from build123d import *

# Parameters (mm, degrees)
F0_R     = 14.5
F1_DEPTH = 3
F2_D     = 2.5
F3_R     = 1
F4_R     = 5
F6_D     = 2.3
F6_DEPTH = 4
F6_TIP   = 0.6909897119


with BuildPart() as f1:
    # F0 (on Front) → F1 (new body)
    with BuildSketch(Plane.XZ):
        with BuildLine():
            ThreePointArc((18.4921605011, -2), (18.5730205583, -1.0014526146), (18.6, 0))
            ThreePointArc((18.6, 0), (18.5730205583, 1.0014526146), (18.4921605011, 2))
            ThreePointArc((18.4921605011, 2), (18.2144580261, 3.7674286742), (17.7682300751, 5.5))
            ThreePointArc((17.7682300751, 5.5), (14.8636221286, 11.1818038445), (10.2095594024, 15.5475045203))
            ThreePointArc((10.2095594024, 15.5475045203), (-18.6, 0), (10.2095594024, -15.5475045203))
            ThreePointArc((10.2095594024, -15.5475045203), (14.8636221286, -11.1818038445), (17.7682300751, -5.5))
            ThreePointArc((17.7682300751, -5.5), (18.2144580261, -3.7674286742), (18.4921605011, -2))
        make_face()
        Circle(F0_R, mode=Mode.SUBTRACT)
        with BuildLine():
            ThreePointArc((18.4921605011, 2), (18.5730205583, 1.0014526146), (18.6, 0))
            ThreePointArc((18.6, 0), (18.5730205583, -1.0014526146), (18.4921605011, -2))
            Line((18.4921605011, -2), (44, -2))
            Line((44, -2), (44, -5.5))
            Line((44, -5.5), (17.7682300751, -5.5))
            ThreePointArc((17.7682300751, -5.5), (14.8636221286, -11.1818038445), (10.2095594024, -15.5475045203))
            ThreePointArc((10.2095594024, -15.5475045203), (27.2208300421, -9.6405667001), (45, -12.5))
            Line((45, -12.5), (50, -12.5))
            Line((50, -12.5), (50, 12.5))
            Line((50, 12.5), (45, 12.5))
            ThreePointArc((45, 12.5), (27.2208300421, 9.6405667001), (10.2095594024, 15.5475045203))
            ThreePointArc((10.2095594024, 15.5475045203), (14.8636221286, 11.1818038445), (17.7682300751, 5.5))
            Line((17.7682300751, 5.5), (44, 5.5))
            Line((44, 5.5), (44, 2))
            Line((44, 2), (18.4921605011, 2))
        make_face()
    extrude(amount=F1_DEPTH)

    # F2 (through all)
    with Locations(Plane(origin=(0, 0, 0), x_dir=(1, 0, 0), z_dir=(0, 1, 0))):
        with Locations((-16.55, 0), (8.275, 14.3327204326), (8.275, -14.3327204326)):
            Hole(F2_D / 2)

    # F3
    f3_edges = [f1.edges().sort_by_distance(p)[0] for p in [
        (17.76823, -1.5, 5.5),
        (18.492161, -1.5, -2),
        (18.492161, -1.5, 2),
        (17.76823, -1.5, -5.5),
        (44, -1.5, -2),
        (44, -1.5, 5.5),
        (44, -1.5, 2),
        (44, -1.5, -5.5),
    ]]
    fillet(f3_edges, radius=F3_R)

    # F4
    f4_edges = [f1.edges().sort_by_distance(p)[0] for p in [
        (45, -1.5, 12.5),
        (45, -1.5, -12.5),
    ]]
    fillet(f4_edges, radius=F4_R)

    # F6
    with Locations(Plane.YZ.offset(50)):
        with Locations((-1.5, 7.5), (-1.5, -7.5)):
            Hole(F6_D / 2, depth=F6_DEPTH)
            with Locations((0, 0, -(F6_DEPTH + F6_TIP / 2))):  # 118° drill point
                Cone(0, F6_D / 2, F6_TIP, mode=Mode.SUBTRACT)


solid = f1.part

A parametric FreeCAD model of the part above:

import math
import FreeCAD as App
import Part
import Sketcher
from FreeCAD import Vector
Q = App.Units.Quantity


def edges_at(feature, points):
    """Names of the edges that pass closest to the given points."""
    edges = feature.Shape.Edges
    near = lambda p: min(range(len(edges)), key=lambda i: edges[i].distToShape(Part.Vertex(*p))[0])
    return sorted({f"Edge{near(p) + 1}" for p in points})

doc = App.newDocument("Part")
params = doc.addObject("Spreadsheet::Sheet", "Params")
for row, (alias, value) in enumerate([
    ("sketch1_diameter", "29 mm"),
    ("sketch1_radius", "18.6 mm"),
    ("sketch1_width", "5 mm"),
    ("sketch1_height", "25 mm"),
    ("sketch1_height2", "3.5 mm"),
    ("pad1_length", "3 mm"),
    ("sketch2_diameter", "2.5 mm"),
    ("hole_diameter", "2.5 mm"),
    ("fillet_radius", "1 mm"),
    ("fillet2_radius", "5 mm"),
    ("sketch3_diameter", "2.3 mm"),
    ("hole2_diameter", "2.3 mm"),
    ("hole2_depth", "4 mm"),
], start=1):
    params.set(f"A{row}", alias)
    params.set(f"B{row}", "=" + value)
    params.setAlias(f"B{row}", alias)

body = doc.addObject("PartDesign::Body", "Body")

sketch1 = body.newObject("Sketcher::SketchObject", "Sketch")
sketch1.AttachmentSupport = (doc.getObject("XZ_Plane"), [""])
sketch1.MapMode = "FlatFace"
sketch1.addGeometry(Part.ArcOfCircle(Part.Circle(Vector(0, 0, 0), Vector(0, 0, 1), 18.6), math.radians(57), math.radians(303)), False)
sketch1.addGeometry(Part.ArcOfCircle(Part.Circle(Vector(30.4, -46.3, 0), Vector(0, 0, 1), 36.8), math.radians(67), math.radians(123)), False)
sketch1.addGeometry(Part.LineSegment(Vector(45, -12.5, 0), Vector(50, -12.5, 0)), False)
sketch1.addGeometry(Part.LineSegment(Vector(50, -12.5, 0), Vector(50, 12.5, 0)), False)
sketch1.addGeometry(Part.LineSegment(Vector(50, 12.5, 0), Vector(45, 12.5, 0)), False)
sketch1.addGeometry(Part.ArcOfCircle(Part.Circle(Vector(30.4, 46.3, 0), Vector(0, 0, 1), 36.8), math.radians(-123), math.radians(-67)), False)
sketch1.addGeometry(Part.ArcOfCircle(Part.Circle(Vector(0, 0, 0), Vector(0, 0, 1), 18.6), math.radians(-17.2), math.radians(-6.17)), False)
sketch1.addGeometry(Part.LineSegment(Vector(18.5, -2, 0), Vector(44, -2, 0)), False)
sketch1.addGeometry(Part.LineSegment(Vector(44, -2, 0), Vector(44, -5.5, 0)), False)
sketch1.addGeometry(Part.LineSegment(Vector(44, -5.5, 0), Vector(17.8, -5.5, 0)), False)
sketch1.addGeometry(Part.ArcOfCircle(Part.Circle(Vector(0, 0, 0), Vector(0, 0, 1), 18.6), math.radians(6.17), math.radians(17.2)), False)
sketch1.addGeometry(Part.LineSegment(Vector(17.8, 5.5, 0), Vector(44, 5.5, 0)), False)
sketch1.addGeometry(Part.LineSegment(Vector(44, 5.5, 0), Vector(44, 2, 0)), False)
sketch1.addGeometry(Part.LineSegment(Vector(44, 2, 0), Vector(18.5, 2, 0)), False)
sketch1.addGeometry(Part.Circle(Vector(0, 0, 0), Vector(0, 0, 1), 14.5), False)
sketch1.addConstraint(Sketcher.Constraint("Tangent", 0, 2, 1, 2))
sketch1.addConstraint(Sketcher.Constraint("Coincident", 1, 1, 2, 1))
sketch1.addConstraint(Sketcher.Constraint("Coincident", 2, 2, 3, 1))
sketch1.addConstraint(Sketcher.Constraint("Coincident", 3, 2, 4, 1))
sketch1.addConstraint(Sketcher.Constraint("Coincident", 4, 2, 5, 2))
sketch1.addConstraint(Sketcher.Constraint("Tangent", 5, 1, 0, 1))
sketch1.addConstraint(Sketcher.Constraint("Coincident", 6, 2, 7, 1))
sketch1.addConstraint(Sketcher.Constraint("Coincident", 7, 2, 8, 1))
sketch1.addConstraint(Sketcher.Constraint("Coincident", 8, 2, 9, 1))
sketch1.addConstraint(Sketcher.Constraint("Coincident", 9, 2, 6, 1))
sketch1.addConstraint(Sketcher.Constraint("Coincident", 10, 2, 11, 1))
sketch1.addConstraint(Sketcher.Constraint("Coincident", 11, 2, 12, 1))
sketch1.addConstraint(Sketcher.Constraint("Coincident", 12, 2, 13, 1))
sketch1.addConstraint(Sketcher.Constraint("Coincident", 13, 2, 10, 1))
sketch1.addConstraint(Sketcher.Constraint("Horizontal", 2))
sketch1.addConstraint(Sketcher.Constraint("Vertical", 3))
sketch1.addConstraint(Sketcher.Constraint("Horizontal", 4))
sketch1.addConstraint(Sketcher.Constraint("Horizontal", 7))
sketch1.addConstraint(Sketcher.Constraint("Vertical", 8))
sketch1.addConstraint(Sketcher.Constraint("Horizontal", 9))
sketch1.addConstraint(Sketcher.Constraint("Horizontal", 11))
sketch1.addConstraint(Sketcher.Constraint("Vertical", 12))
sketch1.addConstraint(Sketcher.Constraint("Horizontal", 13))
sketch1.addConstraint(Sketcher.Constraint("Coincident", 0, 3, -1, 1))
sketch1.addConstraint(Sketcher.Constraint("Coincident", 6, 3, -1, 1))
sketch1.addConstraint(Sketcher.Constraint("Coincident", 10, 3, -1, 1))
sketch1.addConstraint(Sketcher.Constraint("Coincident", 14, 3, -1, 1))
sketch1.addConstraint(Sketcher.Constraint("Equal", 1, 5))
sketch1.addConstraint(Sketcher.Constraint("Equal", 0, 6))
sketch1.addConstraint(Sketcher.Constraint("Equal", 6, 10))
sketch1.addConstraint(Sketcher.Constraint("Symmetric", 1, 1, 4, 2, -1))
sketch1.addConstraint(Sketcher.Constraint("Symmetric", 8, 2, 11, 2, -1))
sketch1.addConstraint(Sketcher.Constraint("Vertical", 6, 2, 13, 2))
sketch1.addConstraint(Sketcher.Constraint("Diameter", 14, Q("29 mm")))
sketch1.addConstraint(Sketcher.Constraint("Radius", 0, Q("18.6 mm")))
sketch1.addConstraint(Sketcher.Constraint("DistanceX", 2, 1, 2, 2, Q("5 mm")))
sketch1.addConstraint(Sketcher.Constraint("DistanceY", 3, 1, 3, 2, Q("25 mm")))
sketch1.addConstraint(Sketcher.Constraint("DistanceY", 8, 2, 8, 1, Q("3.5 mm")))
sketch1.addConstraint(Sketcher.Constraint("DistanceX", -1, 1, 1, 1, Q("45 mm")))
sketch1.addConstraint(Sketcher.Constraint("DistanceY", 6, 2, -1, 1, Q("2 mm")))
sketch1.addConstraint(Sketcher.Constraint("DistanceX", -1, 1, 7, 2, Q("44 mm")))
sketch1.addConstraint(Sketcher.Constraint("Radius", 1, Q("36.849714 mm")))
sketch1.setExpression("Constraints[33]", "Params.sketch1_diameter")
sketch1.setExpression("Constraints[34]", "Params.sketch1_radius")
sketch1.setExpression("Constraints[35]", "Params.sketch1_width")
sketch1.setExpression("Constraints[36]", "Params.sketch1_height")
sketch1.setExpression("Constraints[37]", "Params.sketch1_height2")
pad1 = body.newObject("PartDesign::Pad", "Pad")
pad1.Profile = sketch1
pad1.setExpression("Length", "Params.pad1_length")

sketch2 = body.newObject("Sketcher::SketchObject", "Sketch001")
sketch2.AttachmentSupport = (doc.getObject("XZ_Plane"), [""])
sketch2.MapMode = "FlatFace"
sketch2.addGeometry(Part.Circle(Vector(-16.6, 0, 0), Vector(0, 0, 1), 1.2), False)
sketch2.addGeometry(Part.Circle(Vector(8.3, -14.3, 0), Vector(0, 0, 1), 1.2), False)
sketch2.addGeometry(Part.Circle(Vector(8.3, 14.3, 0), Vector(0, 0, 1), 1.2), False)
sketch2.addConstraint(Sketcher.Constraint("Equal", 0, 1))
sketch2.addConstraint(Sketcher.Constraint("Equal", 1, 2))
sketch2.addConstraint(Sketcher.Constraint("Symmetric", 1, 3, 2, 3, -1))
sketch2.addConstraint(Sketcher.Constraint("PointOnObject", 0, 3, -1))
sketch2.addConstraint(Sketcher.Constraint("Diameter", 0, Q("2.5 mm")))
sketch2.addConstraint(Sketcher.Constraint("DistanceX", 0, 3, -1, 1, Q("16.55 mm")))
sketch2.addConstraint(Sketcher.Constraint("DistanceX", -1, 1, 1, 3, Q("8.275 mm")))
sketch2.addConstraint(Sketcher.Constraint("DistanceY", 1, 3, -1, 1, Q("14.33272 mm")))
sketch2.setExpression("Constraints[4]", "Params.sketch2_diameter")
doc.recompute()
hole = body.newObject("PartDesign::Hole", "Hole")
hole.Profile = sketch2
hole.ThreadType = "None"
hole.setExpression("Diameter", "Params.hole_diameter")
hole.DepthType = "ThroughAll"
hole.Reversed = True
doc.recompute()

fillet = body.newObject("PartDesign::Fillet", "Fillet")
fillet.Base = (hole, edges_at(hole, [
    (17.768, -1.5, 5.5),
    (18.492, -1.5, -2),
    (18.492, -1.5, 2),
    (17.768, -1.5, -5.5),
    (44, -1.5, -2),
    (44, -1.5, 5.5),
    (44, -1.5, 2),
    (44, -1.5, -5.5),
]))
fillet.setExpression("Radius", "Params.fillet_radius")
doc.recompute()

fillet2 = body.newObject("PartDesign::Fillet", "Fillet001")
fillet2.Base = (fillet, edges_at(fillet, [(45, -1.5, 12.5), (45, -1.5, -12.5)]))
fillet2.setExpression("Radius", "Params.fillet2_radius")

sketch3 = body.newObject("Sketcher::SketchObject", "Sketch002")
sketch3.AttachmentSupport = (doc.getObject("YZ_Plane"), [""])
sketch3.MapMode = "FlatFace"
sketch3.AttachmentOffset = App.Placement(Vector(0, 0, 50), App.Rotation())
sketch3.addGeometry(Part.Circle(Vector(-1.5, 7.5, 0), Vector(0, 0, 1), 1.1), False)
sketch3.addGeometry(Part.Circle(Vector(-1.5, -7.5, 0), Vector(0, 0, 1), 1.1), False)
sketch3.addConstraint(Sketcher.Constraint("Equal", 0, 1))
sketch3.addConstraint(Sketcher.Constraint("Symmetric", 0, 3, 1, 3, -1))
sketch3.addConstraint(Sketcher.Constraint("Diameter", 0, Q("2.3 mm")))
sketch3.addConstraint(Sketcher.Constraint("DistanceY", 1, 3, 0, 3, Q("15 mm")))
sketch3.addConstraint(Sketcher.Constraint("DistanceX", 0, 3, -1, 1, Q("1.5 mm")))
sketch3.setExpression("Constraints[2]", "Params.sketch3_diameter")
doc.recompute()
hole2 = body.newObject("PartDesign::Hole", "Hole001")
hole2.Profile = sketch3
hole2.ThreadType = "None"
hole2.setExpression("Diameter", "Params.hole2_diameter")
hole2.DepthType = "Dimension"
hole2.setExpression("Depth", "Params.hole2_depth")
hole2.DrillPoint = "Angled"
hole2.DrillPointAngle = 118

doc.recompute()
